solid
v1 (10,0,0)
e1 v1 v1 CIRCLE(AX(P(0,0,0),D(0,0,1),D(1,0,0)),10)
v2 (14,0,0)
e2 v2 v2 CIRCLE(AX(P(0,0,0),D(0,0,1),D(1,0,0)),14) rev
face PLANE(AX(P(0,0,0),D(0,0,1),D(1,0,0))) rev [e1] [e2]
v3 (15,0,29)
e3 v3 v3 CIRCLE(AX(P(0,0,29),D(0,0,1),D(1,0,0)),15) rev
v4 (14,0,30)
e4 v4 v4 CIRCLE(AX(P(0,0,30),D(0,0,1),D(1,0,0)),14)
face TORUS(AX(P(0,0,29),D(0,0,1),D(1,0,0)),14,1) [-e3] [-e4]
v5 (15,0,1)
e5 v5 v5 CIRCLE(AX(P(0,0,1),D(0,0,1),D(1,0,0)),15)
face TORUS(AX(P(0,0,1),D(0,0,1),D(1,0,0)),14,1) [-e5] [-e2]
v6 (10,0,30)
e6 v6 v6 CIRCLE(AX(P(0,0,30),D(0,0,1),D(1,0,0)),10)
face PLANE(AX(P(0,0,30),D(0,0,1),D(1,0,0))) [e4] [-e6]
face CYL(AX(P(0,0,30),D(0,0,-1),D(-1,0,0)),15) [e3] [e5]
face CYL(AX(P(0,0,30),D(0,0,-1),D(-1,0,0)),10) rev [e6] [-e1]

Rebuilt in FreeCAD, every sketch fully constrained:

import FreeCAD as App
import Part
import Sketcher

V = App.Vector


def edges_at(feature, points):
    """Names of the edges that pass closest to the given points."""
    edges = feature.Shape.Edges
    near = lambda p: min(range(len(edges)), key=lambda i: edges[i].distToShape(Part.Vertex(*p))[0])
    return sorted({f"Edge{near(p) + 1}" for p in points})

doc = App.newDocument("Part")
body = doc.addObject("PartDesign::Body", "Body")

sketch1 = body.newObject("Sketcher::SketchObject", "Sketch")
sketch1.AttachmentSupport = (doc.getObject("XY_Plane"), [""])
sketch1.MapMode = "FlatFace"
sketch1.addGeometry(Part.Circle(V(0, 0, 0), V(0, 0, 1), 15), False)
sketch1.addGeometry(Part.Circle(V(0, 0, 0), V(0, 0, 1), 10), False)
sketch1.addConstraint(Sketcher.Constraint("Coincident", 0, 3, -1, 1))
sketch1.addConstraint(Sketcher.Constraint("Coincident", 1, 3, -1, 1))
sketch1.addConstraint(Sketcher.Constraint("Diameter", 0, 30.0))
sketch1.addConstraint(Sketcher.Constraint("Diameter", 1, 20.0))
pad1 = body.newObject("PartDesign::Pad", "Pad")
pad1.Profile = sketch1
pad1.Length = 30
doc.recompute()

fillet = body.newObject("PartDesign::Fillet", "Fillet")
fillet.Base = (pad1, edges_at(pad1, [(-15, 0, 0), (-15, 0, 30)]))
fillet.Radius = 1

doc.recompute()
